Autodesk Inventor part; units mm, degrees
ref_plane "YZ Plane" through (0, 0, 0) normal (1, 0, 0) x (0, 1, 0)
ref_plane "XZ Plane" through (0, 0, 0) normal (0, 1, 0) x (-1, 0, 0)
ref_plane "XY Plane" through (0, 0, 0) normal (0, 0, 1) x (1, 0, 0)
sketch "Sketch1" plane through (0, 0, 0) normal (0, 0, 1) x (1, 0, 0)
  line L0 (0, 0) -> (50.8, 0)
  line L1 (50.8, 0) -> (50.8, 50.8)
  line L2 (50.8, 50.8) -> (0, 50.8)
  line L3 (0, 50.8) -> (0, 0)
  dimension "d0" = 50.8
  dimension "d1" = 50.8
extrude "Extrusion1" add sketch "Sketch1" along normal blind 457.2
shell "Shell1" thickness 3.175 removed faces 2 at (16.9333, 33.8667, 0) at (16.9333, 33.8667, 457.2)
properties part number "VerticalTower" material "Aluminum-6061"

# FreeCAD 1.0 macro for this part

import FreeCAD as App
import Part
import Sketcher
from FreeCAD import Vector
Q = App.Units.Quantity


def faces_at(feature, points):
    """Names of the faces that lie closest to the given points."""
    faces = feature.Shape.Faces
    near = lambda p: min(range(len(faces)), key=lambda i: faces[i].distToShape(Part.Vertex(*p))[0])
    return sorted({f"Face{near(p) + 1}" for p in points})

doc = App.newDocument("Part")
body = doc.addObject("PartDesign::Body", "Body")

sketch1 = body.newObject("Sketcher::SketchObject", "Sketch")
sketch1.AttachmentSupport = (doc.getObject("XY_Plane"), [""])
sketch1.MapMode = "FlatFace"
sketch1.addGeometry(Part.LineSegment(Vector(0, 50.8, 0), Vector(0, 0, 0)), False)
sketch1.addGeometry(Part.LineSegment(Vector(0, 0, 0), Vector(50.8, 0, 0)), False)
sketch1.addGeometry(Part.LineSegment(Vector(50.8, 0, 0), Vector(50.8, 50.8, 0)), False)
sketch1.addGeometry(Part.LineSegment(Vector(50.8, 50.8, 0), Vector(0, 50.8, 0)), False)
sketch1.addConstraint(Sketcher.Constraint("Coincident", 0, 2, 1, 1))
sketch1.addConstraint(Sketcher.Constraint("Coincident", 1, 2, 2, 1))
sketch1.addConstraint(Sketcher.Constraint("Coincident", 2, 2, 3, 1))
sketch1.addConstraint(Sketcher.Constraint("Coincident", 3, 2, 0, 1))
sketch1.addConstraint(Sketcher.Constraint("Vertical", 0))
sketch1.addConstraint(Sketcher.Constraint("Horizontal", 1))
sketch1.addConstraint(Sketcher.Constraint("Vertical", 2))
sketch1.addConstraint(Sketcher.Constraint("Horizontal", 3))
sketch1.addConstraint(Sketcher.Constraint("Coincident", 0, 2, -1, 1))
sketch1.addConstraint(Sketcher.Constraint("Equal", 3, 0))
sketch1.addConstraint(Sketcher.Constraint("DistanceX", 1, 1, 1, 2, Q("2 in")))
pad1 = body.newObject("PartDesign::Pad", "Pad")
pad1.Profile = sketch1
pad1.Length = Q("18 in")
doc.recompute()

thickness = body.newObject("PartDesign::Thickness", "Thickness")
thickness.Base = (pad1, faces_at(pad1, [(16.933, 33.867, 0), (16.933, 33.867, 457.2)]))
thickness.Value = Q("0.125 in")
thickness.Reversed = True
thickness.Join = "Intersection"

doc.recompute()
